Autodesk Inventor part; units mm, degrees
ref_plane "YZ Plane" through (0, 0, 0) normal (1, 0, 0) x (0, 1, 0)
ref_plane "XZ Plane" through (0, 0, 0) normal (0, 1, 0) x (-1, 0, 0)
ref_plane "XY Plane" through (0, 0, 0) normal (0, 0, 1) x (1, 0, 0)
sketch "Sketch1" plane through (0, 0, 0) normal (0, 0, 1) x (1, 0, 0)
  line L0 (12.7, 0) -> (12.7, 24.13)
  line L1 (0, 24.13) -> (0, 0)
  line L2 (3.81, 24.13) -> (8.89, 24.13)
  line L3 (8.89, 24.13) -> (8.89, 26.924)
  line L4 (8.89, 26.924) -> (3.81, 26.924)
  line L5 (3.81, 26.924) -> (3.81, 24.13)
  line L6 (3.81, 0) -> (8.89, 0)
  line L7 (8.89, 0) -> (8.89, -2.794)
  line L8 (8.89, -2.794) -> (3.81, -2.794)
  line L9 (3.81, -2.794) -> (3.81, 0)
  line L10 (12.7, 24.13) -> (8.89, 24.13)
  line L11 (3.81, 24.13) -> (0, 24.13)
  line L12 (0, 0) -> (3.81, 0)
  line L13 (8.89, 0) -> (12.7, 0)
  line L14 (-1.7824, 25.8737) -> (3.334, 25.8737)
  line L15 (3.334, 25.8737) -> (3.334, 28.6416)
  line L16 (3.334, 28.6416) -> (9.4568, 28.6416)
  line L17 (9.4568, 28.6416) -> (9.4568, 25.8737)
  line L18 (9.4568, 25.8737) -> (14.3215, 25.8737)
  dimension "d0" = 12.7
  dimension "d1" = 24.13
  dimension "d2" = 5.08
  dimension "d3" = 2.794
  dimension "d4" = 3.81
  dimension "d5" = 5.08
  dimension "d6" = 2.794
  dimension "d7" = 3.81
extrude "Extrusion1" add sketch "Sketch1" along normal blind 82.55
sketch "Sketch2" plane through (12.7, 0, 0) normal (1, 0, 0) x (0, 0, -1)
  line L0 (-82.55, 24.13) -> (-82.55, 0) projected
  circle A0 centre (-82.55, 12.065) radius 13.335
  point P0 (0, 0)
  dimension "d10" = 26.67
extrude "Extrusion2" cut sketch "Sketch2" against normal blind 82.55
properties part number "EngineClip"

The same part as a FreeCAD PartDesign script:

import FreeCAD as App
import Part
import Sketcher
Q = App.Units.Quantity

doc = App.newDocument("Part")
body = doc.addObject("PartDesign::Body", "Body")

sketch1 = body.newObject("Sketcher::SketchObject", "Sketch")
sketch1.AttachmentSupport = (doc.getObject("XY_Plane"), [""])
sketch1.MapMode = "FlatFace"
sketch1.addGeometry(Part.LineSegment(App.Vector(8.9, 0, 0), App.Vector(12.7, 0, 0)), False)
sketch1.addGeometry(Part.LineSegment(App.Vector(12.7, 0, 0), App.Vector(12.7, 24.1, 0)), False)
sketch1.addGeometry(Part.LineSegment(App.Vector(12.7, 24.1, 0), App.Vector(8.9, 24.1, 0)), False)
sketch1.addGeometry(Part.LineSegment(App.Vector(8.9, 24.1, 0), App.Vector(8.9, 26.9, 0)), False)
sketch1.addGeometry(Part.LineSegment(App.Vector(8.9, 26.9, 0), App.Vector(3.8, 26.9, 0)), False)
sketch1.addGeometry(Part.LineSegment(App.Vector(3.8, 26.9, 0), App.Vector(3.8, 24.1, 0)), False)
sketch1.addGeometry(Part.LineSegment(App.Vector(3.8, 24.1, 0), App.Vector(0, 24.1, 0)), False)
sketch1.addGeometry(Part.LineSegment(App.Vector(0, 24.1, 0), App.Vector(0, 0, 0)), False)
sketch1.addGeometry(Part.LineSegment(App.Vector(0, 0, 0), App.Vector(3.8, 0, 0)), False)
sketch1.addGeometry(Part.LineSegment(App.Vector(3.8, 0, 0), App.Vector(3.8, -2.8, 0)), False)
sketch1.addGeometry(Part.LineSegment(App.Vector(3.8, -2.8, 0), App.Vector(8.9, -2.8, 0)), False)
sketch1.addGeometry(Part.LineSegment(App.Vector(8.9, -2.8, 0), App.Vector(8.9, 0, 0)), False)
sketch1.addConstraint(Sketcher.Constraint("Coincident", 0, 2, 1, 1))
sketch1.addConstraint(Sketcher.Constraint("Coincident", 1, 2, 2, 1))
sketch1.addConstraint(Sketcher.Constraint("Coincident", 2, 2, 3, 1))
sketch1.addConstraint(Sketcher.Constraint("Coincident", 3, 2, 4, 1))
sketch1.addConstraint(Sketcher.Constraint("Coincident", 4, 2, 5, 1))
sketch1.addConstraint(Sketcher.Constraint("Coincident", 5, 2, 6, 1))
sketch1.addConstraint(Sketcher.Constraint("Coincident", 6, 2, 7, 1))
sketch1.addConstraint(Sketcher.Constraint("Coincident", 7, 2, 8, 1))
sketch1.addConstraint(Sketcher.Constraint("Coincident", 8, 2, 9, 1))
sketch1.addConstraint(Sketcher.Constraint("Coincident", 9, 2, 10, 1))
sketch1.addConstraint(Sketcher.Constraint("Coincident", 10, 2, 11, 1))
sketch1.addConstraint(Sketcher.Constraint("Coincident", 11, 2, 0, 1))
sketch1.addConstraint(Sketcher.Constraint("Horizontal", 0))
sketch1.addConstraint(Sketcher.Constraint("Vertical", 1))
sketch1.addConstraint(Sketcher.Constraint("Horizontal", 2))
sketch1.addConstraint(Sketcher.Constraint("Vertical", 3))
sketch1.addConstraint(Sketcher.Constraint("Horizontal", 4))
sketch1.addConstraint(Sketcher.Constraint("Vertical", 5))
sketch1.addConstraint(Sketcher.Constraint("Horizontal", 6))
sketch1.addConstraint(Sketcher.Constraint("Vertical", 7))
sketch1.addConstraint(Sketcher.Constraint("Horizontal", 8))
sketch1.addConstraint(Sketcher.Constraint("Vertical", 9))
sketch1.addConstraint(Sketcher.Constraint("Horizontal", 10))
sketch1.addConstraint(Sketcher.Constraint("Vertical", 11))
sketch1.addConstraint(Sketcher.Constraint("Coincident", 7, 2, -1, 1))
sketch1.addConstraint(Sketcher.Constraint("PointOnObject", 0, 2, -1))
sketch1.addConstraint(Sketcher.Constraint("Horizontal", 2, 2, 5, 2))
sketch1.addConstraint(Sketcher.Constraint("Vertical", 5, 2, 8, 2))
sketch1.addConstraint(Sketcher.Constraint("Vertical", 3, 2, 10, 2))
sketch1.addConstraint(Sketcher.Constraint("Equal", 2, 6))
sketch1.addConstraint(Sketcher.Constraint("Equal", 5, 9))
sketch1.addConstraint(Sketcher.Constraint("DistanceX", 4, 2, 4, 1, Q("0.2 in")))
sketch1.addConstraint(Sketcher.Constraint("DistanceX", 0, 1, 0, 2, Q("0.15 in")))
sketch1.addConstraint(Sketcher.Constraint("DistanceY", 1, 1, 1, 2, Q("0.95 in")))
sketch1.addConstraint(Sketcher.Constraint("DistanceY", 3, 1, 3, 2, Q("0.11 in")))
pad1 = body.newObject("PartDesign::Pad", "Pad")
pad1.Profile = sketch1
pad1.Length = Q("3.25 in")

sketch2 = body.newObject("Sketcher::SketchObject", "Sketch001")
sketch2.AttachmentSupport = (doc.getObject("YZ_Plane"), [""])
sketch2.MapMode = "FlatFace"
sketch2.AttachmentOffset = App.Placement(App.Vector(0, 0, 0.5 * 25.4), App.Rotation())
sketch2.addGeometry(Part.Circle(App.Vector(12, 83, 0), App.Vector(0, 0, 1), 13), False)
sketch2.addConstraint(Sketcher.Constraint("Diameter", 0, Q("1.05 in")))
sketch2.addConstraint(Sketcher.Constraint("DistanceY", -1, 1, 0, 3, Q("3.25 in")))
sketch2.addConstraint(Sketcher.Constraint("DistanceX", -1, 1, 0, 3, Q("0.475 in")))
pocket1 = body.newObject("PartDesign::Pocket", "Pocket")
pocket1.Profile = sketch2
pocket1.Length = Q("3.25 in")

doc.recompute()
